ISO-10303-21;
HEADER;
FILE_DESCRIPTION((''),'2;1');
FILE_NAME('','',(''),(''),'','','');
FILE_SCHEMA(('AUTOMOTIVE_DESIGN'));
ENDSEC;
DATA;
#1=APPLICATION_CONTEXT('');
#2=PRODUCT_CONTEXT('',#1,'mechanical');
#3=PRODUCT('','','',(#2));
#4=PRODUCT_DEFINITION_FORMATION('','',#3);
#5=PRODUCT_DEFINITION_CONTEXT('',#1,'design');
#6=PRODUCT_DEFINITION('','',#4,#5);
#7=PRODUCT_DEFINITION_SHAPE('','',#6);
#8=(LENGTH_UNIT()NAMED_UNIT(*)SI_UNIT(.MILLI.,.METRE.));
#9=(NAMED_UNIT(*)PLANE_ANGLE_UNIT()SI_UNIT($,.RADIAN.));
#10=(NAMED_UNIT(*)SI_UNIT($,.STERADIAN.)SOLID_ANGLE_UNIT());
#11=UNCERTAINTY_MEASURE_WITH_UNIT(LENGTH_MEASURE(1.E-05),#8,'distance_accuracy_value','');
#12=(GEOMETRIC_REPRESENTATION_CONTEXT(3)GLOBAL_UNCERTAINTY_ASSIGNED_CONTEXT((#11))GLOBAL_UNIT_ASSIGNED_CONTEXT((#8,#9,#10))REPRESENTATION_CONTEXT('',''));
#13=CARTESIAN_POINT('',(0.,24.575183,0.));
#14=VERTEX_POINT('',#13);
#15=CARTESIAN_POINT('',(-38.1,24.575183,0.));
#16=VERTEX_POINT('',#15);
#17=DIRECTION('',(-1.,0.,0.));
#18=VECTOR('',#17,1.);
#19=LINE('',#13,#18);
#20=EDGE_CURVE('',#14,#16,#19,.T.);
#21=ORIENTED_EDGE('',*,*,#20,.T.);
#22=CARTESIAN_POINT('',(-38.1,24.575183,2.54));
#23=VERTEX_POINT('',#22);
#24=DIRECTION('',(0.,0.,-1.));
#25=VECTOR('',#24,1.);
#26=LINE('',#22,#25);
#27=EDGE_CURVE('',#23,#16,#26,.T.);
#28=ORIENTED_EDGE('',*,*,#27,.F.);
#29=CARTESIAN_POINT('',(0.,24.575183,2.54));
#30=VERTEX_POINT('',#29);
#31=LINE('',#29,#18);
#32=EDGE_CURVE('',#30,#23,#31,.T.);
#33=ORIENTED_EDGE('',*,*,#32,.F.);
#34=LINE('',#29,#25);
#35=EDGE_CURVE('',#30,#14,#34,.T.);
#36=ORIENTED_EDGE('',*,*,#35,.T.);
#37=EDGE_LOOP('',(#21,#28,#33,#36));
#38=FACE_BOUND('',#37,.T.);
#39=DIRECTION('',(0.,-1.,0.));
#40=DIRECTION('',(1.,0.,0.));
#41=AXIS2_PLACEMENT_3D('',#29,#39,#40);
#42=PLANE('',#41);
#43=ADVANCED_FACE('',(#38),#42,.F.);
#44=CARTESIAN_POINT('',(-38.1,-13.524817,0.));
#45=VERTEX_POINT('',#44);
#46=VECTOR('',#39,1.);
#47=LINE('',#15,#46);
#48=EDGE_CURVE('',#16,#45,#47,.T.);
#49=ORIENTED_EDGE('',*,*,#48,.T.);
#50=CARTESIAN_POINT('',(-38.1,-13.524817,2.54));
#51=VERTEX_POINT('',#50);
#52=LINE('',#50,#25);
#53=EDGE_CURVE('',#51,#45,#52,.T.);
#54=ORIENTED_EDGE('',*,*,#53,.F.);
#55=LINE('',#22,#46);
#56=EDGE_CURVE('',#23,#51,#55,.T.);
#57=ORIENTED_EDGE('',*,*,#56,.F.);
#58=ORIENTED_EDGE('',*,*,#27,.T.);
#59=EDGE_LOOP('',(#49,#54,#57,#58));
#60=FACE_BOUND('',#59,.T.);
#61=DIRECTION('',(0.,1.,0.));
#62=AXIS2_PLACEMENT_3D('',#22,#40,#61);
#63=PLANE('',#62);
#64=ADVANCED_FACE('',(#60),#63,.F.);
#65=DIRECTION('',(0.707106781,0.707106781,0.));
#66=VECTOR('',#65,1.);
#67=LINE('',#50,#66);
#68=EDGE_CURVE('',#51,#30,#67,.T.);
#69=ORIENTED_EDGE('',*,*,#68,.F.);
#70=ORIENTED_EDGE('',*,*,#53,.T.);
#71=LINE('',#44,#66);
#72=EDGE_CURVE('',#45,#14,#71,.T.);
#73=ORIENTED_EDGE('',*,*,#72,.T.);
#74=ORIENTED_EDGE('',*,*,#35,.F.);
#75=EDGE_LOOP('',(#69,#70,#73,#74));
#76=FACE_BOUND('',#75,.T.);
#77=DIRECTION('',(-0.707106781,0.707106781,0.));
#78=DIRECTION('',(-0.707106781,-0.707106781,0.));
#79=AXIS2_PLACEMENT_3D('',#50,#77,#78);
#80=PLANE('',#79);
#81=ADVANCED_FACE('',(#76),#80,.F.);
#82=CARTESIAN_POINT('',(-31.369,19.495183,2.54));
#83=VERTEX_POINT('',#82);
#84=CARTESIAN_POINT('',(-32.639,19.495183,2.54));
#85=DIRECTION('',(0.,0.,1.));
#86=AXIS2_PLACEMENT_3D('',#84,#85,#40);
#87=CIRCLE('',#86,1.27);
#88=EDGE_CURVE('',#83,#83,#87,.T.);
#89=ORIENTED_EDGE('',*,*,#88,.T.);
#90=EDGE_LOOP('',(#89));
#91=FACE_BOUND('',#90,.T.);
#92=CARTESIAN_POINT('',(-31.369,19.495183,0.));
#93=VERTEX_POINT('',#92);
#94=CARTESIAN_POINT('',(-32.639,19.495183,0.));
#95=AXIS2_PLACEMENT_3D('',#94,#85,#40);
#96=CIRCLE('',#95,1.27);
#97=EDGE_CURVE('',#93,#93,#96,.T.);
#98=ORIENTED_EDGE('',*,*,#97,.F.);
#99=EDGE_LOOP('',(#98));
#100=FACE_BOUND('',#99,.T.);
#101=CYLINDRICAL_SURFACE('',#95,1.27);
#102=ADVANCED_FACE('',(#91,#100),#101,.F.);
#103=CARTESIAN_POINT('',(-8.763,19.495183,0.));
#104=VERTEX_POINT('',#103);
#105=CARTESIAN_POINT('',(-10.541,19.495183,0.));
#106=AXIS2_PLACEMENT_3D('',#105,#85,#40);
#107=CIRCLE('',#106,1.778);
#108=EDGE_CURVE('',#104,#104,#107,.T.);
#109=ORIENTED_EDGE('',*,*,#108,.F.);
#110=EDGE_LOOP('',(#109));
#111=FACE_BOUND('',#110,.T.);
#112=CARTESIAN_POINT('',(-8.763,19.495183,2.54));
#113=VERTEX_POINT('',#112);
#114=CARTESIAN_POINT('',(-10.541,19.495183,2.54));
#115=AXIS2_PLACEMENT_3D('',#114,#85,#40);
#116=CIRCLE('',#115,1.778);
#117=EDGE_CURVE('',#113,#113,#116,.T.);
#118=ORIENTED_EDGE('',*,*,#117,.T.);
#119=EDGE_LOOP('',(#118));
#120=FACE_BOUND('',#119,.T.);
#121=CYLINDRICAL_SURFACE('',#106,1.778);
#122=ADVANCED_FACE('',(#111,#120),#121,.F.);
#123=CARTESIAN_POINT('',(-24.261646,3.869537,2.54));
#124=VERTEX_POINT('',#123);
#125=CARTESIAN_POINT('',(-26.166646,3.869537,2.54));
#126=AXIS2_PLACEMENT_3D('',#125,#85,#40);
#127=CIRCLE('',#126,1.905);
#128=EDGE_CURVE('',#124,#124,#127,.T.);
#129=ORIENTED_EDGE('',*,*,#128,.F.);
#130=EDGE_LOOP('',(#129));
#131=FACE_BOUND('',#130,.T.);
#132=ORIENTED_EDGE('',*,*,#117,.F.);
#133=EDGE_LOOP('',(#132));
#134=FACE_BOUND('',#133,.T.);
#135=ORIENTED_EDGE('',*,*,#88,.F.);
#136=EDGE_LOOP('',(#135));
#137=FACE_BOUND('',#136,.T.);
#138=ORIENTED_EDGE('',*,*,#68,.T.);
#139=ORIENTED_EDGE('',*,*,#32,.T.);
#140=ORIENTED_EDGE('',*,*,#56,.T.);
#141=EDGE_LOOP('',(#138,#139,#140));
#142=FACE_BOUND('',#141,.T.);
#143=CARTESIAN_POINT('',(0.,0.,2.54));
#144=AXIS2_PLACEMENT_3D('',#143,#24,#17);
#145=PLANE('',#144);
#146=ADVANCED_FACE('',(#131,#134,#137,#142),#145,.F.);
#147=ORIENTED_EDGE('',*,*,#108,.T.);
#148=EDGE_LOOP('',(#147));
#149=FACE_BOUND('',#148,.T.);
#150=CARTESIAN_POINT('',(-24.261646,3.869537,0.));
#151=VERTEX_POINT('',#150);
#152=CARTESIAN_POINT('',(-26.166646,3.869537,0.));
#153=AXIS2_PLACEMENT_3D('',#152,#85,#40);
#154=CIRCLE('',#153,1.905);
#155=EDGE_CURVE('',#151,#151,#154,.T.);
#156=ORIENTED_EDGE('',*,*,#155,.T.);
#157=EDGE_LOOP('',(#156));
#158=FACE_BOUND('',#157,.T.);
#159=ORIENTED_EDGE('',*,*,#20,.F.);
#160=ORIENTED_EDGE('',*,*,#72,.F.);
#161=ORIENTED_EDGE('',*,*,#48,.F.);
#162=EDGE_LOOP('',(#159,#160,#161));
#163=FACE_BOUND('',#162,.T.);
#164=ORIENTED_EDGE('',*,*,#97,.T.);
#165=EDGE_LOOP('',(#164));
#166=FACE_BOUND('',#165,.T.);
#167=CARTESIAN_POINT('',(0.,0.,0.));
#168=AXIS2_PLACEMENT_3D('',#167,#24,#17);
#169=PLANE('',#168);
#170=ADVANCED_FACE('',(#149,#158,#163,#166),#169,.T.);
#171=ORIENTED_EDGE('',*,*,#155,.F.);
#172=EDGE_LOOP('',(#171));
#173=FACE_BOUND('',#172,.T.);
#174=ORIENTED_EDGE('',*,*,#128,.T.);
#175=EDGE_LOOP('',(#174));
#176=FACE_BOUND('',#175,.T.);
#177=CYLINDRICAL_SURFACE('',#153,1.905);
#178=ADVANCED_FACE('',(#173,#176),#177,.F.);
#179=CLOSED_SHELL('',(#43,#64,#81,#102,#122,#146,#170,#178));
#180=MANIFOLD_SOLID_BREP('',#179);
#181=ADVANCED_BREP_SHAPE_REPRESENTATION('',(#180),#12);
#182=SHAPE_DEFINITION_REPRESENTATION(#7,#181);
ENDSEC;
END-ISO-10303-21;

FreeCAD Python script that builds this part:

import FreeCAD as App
import Part
import Sketcher
from FreeCAD import Vector
Q = App.Units.Quantity


def add_polygon(sketch, points):
    """Adds a closed chain of lines whose ends are joined by coincident constraints."""
    first, n = sketch.GeometryCount, len(points)
    for a, b in zip(points, points[1:] + points[:1]):
        sketch.addGeometry(Part.LineSegment(App.Vector(*a, 0), App.Vector(*b, 0)), False)
    for i in range(n):
        sketch.addConstraint(Sketcher.Constraint("Coincident", first + i, 2, first + (i + 1) % n, 1))

doc = App.newDocument("Part")
params = doc.addObject("Spreadsheet::Sheet", "Params")
for row, (alias, value) in enumerate([
    ("sketch1_width", "1.5 in"),
    ("pad1_length", "0.1 in"),
    ("sketch2_diameter", "0.1 in"),
    ("sketch2_diameter2", "0.14 in"),
    ("sketch2_diameter3", "0.15 in"),
], start=1):
    params.set(f"A{row}", alias)
    params.set(f"B{row}", "=" + value)
    params.setAlias(f"B{row}", alias)

body = doc.addObject("PartDesign::Body", "Body")

sketch1 = doc.addObject("Sketcher::SketchObject", "Sketch")
body.addObject(sketch1)
sketch1.AttachmentSupport = (doc.XY_Plane, [""])
sketch1.MapMode = "FlatFace"
add_polygon(sketch1, [(-38, 25), (-38, -14), (0, 25)])
sketch1.addConstraint(Sketcher.Constraint("Vertical", 0))
sketch1.addConstraint(Sketcher.Constraint("Horizontal", 2))
sketch1.addConstraint(Sketcher.Constraint("PointOnObject", 1, 2, -2))
sketch1.addConstraint(Sketcher.Constraint("Equal", 2, 0))
sketch1.addConstraint(Sketcher.Constraint("DistanceX", 2, 2, 2, 1, Q("1.5 in")))
sketch1.addConstraint(Sketcher.Constraint("DistanceY", 0, 2, -1, 1, Q("13.524817 mm")))
sketch1.setExpression("Constraints[7]", "Params.sketch1_width")
pad1 = doc.addObject("PartDesign::Pad", "Pad")
body.addObject(pad1)
pad1.Profile = sketch1
pad1.setExpression("Length", "Params.pad1_length")

sketch2 = doc.addObject("Sketcher::SketchObject", "Sketch001")
body.addObject(sketch2)
sketch2.AttachmentSupport = (doc.XY_Plane, [""])
sketch2.MapMode = "FlatFace"
sketch2.AttachmentOffset = App.Placement(Vector(0, 0, 0.1 * 25.4), App.Rotation())
sketch2.addGeometry(Part.Circle(Vector(-32.6, 19.5, 0), Vector(0, 0, 1), 1.3), False)
sketch2.addGeometry(Part.Circle(Vector(-10.5, 19.5, 0), Vector(0, 0, 1), 1.8), False)
sketch2.addGeometry(Part.Circle(Vector(-26.2, 3.9, 0), Vector(0, 0, 1), 1.9), False)
sketch2.addConstraint(Sketcher.Constraint("Horizontal", 0, 3, 1, 3))
sketch2.addConstraint(Sketcher.Constraint("Diameter", 0, Q("0.1 in")))
sketch2.addConstraint(Sketcher.Constraint("Diameter", 1, Q("0.14 in")))
sketch2.addConstraint(Sketcher.Constraint("Diameter", 2, Q("0.15 in")))
sketch2.addConstraint(Sketcher.Constraint("DistanceX", 0, 3, 1, 3, Q("0.87 in")))
sketch2.addConstraint(Sketcher.Constraint("DistanceX", 0, 3, -1, 1, Q("1.285 in")))
sketch2.addConstraint(Sketcher.Constraint("DistanceY", -1, 1, 0, 3, Q("19.495183 mm")))
sketch2.addConstraint(Sketcher.Constraint("DistanceX", 2, 3, -1, 1, Q("26.166646 mm")))
sketch2.addConstraint(Sketcher.Constraint("DistanceY", -1, 1, 2, 3, Q("3.869537 mm")))
sketch2.setExpression("Constraints[1]", "Params.sketch2_diameter")
sketch2.setExpression("Constraints[2]", "Params.sketch2_diameter2")
sketch2.setExpression("Constraints[3]", "Params.sketch2_diameter3")
pocket1 = doc.addObject("PartDesign::Pocket", "Pocket")
body.addObject(pocket1)
pocket1.Profile = sketch2
pocket1.Type = "ThroughAll"

doc.recompute()
